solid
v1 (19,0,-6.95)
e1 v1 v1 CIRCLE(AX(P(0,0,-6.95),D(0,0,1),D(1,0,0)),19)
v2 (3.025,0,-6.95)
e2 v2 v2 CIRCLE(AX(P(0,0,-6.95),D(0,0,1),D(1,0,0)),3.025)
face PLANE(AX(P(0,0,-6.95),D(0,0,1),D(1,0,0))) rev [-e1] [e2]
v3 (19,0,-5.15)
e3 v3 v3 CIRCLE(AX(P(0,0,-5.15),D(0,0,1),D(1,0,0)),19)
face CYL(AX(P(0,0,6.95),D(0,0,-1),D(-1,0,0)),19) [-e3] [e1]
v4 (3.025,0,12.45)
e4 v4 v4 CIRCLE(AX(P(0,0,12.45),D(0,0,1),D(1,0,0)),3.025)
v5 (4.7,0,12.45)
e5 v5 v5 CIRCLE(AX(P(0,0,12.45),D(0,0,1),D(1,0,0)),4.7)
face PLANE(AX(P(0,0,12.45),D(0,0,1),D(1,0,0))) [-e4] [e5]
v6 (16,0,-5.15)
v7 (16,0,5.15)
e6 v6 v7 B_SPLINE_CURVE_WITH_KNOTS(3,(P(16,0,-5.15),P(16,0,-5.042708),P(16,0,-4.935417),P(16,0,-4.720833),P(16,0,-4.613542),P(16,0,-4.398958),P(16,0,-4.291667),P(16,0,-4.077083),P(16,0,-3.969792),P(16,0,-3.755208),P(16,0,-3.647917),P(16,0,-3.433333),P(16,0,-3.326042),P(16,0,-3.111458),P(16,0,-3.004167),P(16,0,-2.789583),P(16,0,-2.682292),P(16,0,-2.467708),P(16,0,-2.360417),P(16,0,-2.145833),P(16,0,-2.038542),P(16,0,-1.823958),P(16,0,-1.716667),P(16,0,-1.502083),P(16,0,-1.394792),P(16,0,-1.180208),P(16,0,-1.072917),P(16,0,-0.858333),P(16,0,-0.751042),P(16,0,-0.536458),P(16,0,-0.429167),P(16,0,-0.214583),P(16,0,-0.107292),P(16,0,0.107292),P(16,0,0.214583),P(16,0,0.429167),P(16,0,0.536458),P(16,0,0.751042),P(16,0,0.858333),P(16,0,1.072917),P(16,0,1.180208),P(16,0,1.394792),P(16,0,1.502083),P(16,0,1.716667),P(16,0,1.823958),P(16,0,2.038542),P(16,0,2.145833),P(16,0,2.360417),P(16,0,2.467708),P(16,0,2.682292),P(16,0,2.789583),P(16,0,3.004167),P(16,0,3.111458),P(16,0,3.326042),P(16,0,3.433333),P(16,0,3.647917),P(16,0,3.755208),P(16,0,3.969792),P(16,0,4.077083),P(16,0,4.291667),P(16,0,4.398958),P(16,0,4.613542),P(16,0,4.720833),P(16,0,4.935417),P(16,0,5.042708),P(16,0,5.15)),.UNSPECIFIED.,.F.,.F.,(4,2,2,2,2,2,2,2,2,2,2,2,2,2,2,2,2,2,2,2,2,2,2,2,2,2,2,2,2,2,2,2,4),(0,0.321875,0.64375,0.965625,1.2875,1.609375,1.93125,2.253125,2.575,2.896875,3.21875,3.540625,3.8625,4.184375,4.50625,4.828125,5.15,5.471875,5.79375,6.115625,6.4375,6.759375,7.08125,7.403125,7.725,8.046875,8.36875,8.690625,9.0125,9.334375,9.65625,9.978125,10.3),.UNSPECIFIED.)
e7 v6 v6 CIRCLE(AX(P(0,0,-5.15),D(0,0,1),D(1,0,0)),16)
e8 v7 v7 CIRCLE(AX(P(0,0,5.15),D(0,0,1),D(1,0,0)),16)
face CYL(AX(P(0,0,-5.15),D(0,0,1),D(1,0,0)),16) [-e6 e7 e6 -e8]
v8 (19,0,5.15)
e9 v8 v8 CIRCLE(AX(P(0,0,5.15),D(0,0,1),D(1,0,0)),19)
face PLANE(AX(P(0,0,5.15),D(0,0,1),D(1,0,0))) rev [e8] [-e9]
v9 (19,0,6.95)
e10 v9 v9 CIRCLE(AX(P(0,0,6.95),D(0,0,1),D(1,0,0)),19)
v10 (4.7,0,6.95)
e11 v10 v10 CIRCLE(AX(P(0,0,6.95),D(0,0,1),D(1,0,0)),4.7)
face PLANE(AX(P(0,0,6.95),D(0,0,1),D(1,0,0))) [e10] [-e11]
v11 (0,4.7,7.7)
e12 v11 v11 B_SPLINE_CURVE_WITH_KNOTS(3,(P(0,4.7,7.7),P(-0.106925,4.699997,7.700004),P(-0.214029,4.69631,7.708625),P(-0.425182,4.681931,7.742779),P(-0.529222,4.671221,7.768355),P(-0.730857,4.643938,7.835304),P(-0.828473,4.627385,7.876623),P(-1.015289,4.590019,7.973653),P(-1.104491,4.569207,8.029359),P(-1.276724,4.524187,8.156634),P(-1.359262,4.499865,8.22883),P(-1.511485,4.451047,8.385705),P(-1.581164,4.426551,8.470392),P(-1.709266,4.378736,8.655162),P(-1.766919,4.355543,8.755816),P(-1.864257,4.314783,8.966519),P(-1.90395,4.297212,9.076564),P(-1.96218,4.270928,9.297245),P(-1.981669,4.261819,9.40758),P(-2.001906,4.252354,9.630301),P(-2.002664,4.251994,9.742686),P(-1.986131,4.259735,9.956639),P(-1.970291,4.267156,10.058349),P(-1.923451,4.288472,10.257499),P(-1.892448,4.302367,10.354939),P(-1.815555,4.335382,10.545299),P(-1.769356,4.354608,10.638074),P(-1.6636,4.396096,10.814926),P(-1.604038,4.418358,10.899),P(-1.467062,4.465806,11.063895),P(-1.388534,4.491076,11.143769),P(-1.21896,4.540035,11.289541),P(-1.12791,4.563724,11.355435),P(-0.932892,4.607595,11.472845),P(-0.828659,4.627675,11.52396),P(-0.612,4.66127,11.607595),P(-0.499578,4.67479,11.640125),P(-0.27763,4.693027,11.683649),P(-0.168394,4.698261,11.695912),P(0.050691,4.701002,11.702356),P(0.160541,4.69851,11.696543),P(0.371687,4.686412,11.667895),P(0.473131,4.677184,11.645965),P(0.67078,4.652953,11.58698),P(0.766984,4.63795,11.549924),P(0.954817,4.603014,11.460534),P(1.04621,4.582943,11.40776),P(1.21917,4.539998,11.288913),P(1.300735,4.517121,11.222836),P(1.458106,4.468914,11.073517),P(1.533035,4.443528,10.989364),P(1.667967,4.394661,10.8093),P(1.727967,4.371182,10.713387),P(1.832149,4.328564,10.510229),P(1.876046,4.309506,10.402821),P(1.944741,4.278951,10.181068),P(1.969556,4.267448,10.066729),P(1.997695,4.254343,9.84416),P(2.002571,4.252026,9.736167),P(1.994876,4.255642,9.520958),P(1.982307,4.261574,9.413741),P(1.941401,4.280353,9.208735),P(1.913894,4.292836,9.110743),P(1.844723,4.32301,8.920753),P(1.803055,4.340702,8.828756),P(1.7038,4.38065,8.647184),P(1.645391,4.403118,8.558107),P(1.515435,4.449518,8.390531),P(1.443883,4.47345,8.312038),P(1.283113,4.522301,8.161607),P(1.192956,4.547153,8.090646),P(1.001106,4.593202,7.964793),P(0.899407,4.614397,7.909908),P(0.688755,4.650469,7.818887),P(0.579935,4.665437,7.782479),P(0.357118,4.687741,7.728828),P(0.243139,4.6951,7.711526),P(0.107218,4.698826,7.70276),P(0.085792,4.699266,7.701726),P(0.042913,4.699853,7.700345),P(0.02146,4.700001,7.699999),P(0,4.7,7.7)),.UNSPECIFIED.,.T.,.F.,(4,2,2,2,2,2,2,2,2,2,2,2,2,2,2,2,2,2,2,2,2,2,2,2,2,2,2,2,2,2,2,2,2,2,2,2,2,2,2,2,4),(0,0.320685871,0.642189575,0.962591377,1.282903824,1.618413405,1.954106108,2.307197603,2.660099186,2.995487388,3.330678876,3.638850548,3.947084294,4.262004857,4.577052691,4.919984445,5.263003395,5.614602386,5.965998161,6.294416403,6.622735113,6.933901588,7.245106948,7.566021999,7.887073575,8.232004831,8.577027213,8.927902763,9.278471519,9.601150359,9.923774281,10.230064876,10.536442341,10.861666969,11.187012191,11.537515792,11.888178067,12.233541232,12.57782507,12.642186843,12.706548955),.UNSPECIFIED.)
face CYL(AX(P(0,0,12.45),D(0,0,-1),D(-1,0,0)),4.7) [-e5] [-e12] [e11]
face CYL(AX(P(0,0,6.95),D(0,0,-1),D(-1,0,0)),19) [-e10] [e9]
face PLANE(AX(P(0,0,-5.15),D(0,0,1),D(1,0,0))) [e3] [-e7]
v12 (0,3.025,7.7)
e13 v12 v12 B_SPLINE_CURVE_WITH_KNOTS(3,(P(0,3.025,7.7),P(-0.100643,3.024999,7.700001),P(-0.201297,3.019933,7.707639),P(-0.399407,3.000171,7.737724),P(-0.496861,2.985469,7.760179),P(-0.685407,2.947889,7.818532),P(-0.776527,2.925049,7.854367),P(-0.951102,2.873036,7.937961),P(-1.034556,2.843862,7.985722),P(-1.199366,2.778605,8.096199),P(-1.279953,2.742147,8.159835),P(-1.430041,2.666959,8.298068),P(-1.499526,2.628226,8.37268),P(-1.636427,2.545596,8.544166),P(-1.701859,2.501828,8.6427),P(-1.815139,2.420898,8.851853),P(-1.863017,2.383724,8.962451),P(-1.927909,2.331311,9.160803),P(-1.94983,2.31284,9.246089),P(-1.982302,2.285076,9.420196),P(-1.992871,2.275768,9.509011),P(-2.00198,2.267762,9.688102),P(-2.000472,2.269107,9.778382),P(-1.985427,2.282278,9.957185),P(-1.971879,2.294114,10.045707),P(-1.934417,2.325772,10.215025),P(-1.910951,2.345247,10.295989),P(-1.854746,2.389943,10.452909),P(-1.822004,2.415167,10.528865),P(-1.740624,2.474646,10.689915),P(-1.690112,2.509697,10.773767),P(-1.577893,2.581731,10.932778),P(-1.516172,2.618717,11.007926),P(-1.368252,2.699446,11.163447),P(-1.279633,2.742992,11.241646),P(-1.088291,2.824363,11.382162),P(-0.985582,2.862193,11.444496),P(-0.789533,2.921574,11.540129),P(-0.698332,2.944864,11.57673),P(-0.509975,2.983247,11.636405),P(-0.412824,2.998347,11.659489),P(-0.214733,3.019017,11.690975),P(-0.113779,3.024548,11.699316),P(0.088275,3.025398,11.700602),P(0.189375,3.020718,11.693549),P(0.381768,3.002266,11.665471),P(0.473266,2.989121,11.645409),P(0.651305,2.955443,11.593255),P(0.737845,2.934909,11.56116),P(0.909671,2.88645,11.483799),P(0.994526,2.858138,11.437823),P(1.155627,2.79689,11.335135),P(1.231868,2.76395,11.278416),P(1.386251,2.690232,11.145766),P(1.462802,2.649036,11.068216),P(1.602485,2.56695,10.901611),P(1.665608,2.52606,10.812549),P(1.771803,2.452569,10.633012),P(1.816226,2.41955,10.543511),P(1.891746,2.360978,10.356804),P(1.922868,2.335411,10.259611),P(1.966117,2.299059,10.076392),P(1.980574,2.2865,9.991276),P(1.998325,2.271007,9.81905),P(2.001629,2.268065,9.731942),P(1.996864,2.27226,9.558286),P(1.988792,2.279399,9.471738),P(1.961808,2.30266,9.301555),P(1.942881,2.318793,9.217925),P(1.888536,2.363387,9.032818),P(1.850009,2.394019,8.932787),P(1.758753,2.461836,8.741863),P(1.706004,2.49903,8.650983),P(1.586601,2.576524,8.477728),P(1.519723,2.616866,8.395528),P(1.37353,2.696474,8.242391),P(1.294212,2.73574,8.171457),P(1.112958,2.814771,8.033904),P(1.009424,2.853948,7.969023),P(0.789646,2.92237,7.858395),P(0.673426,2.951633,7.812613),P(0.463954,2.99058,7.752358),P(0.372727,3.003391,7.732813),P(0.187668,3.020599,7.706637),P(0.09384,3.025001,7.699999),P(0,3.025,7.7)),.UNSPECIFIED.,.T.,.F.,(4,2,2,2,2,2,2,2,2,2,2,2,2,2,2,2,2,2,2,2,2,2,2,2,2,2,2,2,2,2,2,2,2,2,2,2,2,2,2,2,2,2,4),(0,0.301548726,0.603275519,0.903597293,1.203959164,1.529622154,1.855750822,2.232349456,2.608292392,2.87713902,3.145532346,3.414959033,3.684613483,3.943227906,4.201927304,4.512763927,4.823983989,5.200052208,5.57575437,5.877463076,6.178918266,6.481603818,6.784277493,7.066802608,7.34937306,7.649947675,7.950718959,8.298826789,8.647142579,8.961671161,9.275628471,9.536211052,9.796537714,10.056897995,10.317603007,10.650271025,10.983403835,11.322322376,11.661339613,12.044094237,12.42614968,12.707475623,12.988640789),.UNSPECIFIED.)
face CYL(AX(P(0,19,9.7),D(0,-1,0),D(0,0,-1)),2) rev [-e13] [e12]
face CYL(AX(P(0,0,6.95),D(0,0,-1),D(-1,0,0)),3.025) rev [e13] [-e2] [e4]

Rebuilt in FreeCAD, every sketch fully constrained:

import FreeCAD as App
import Part
import Sketcher

V = App.Vector
Q = App.Units.Quantity

doc = App.newDocument("Part")
body = doc.addObject("PartDesign::Body", "Body")

# Sketch on XY plane
sketch1 = body.newObject("Sketcher::SketchObject", "Sketch")
sketch1.AttachmentSupport = (doc.getObject("XY_Plane"), [""])
sketch1.MapMode = "FlatFace"
sketch1.addGeometry([
    Part.Circle(V(0, 0, 0), V(0, 0, 1), 19),
    Part.Circle(V(0, 0, 0), V(0, 0, 1), 3),
], False)
sketch1.addConstraint([
    Sketcher.Constraint("Coincident", 0, 3, -1, 1),
    Sketcher.Constraint("Coincident", 1, 3, -1, 1),
    Sketcher.Constraint("Diameter", 0, Q("38 mm")),
    Sketcher.Constraint("Diameter", 1, Q("6.05 mm")),
])
pad1 = body.newObject("PartDesign::Pad", "Pad")
pad1.Profile = sketch1
pad1.Length = 13.9
pad1.Midplane = True

# Sketch on XY plane
sketch2 = body.newObject("Sketcher::SketchObject", "Sketch001")
sketch2.AttachmentSupport = (doc.getObject("XY_Plane"), [""])
sketch2.MapMode = "FlatFace"
sketch2.addGeometry([
    Part.Circle(V(0, 0, 0), V(0, 0, 1), 50),
    Part.Circle(V(0, 0, 0), V(0, 0, 1), 16),
], False)
sketch2.addConstraint([
    Sketcher.Constraint("Coincident", 0, 3, -1, 1),
    Sketcher.Constraint("Coincident", 1, 3, -1, 1),
    Sketcher.Constraint("Diameter", 0, Q("100 mm")),
    Sketcher.Constraint("Diameter", 1, Q("32 mm")),
])
pocket1 = body.newObject("PartDesign::Pocket", "Pocket")
pocket1.Profile = sketch2
pocket1.Length = 10.3
pocket1.Midplane = True

# Sketch on XY plane
sketch3 = body.newObject("Sketcher::SketchObject", "Sketch002")
sketch3.AttachmentSupport = (doc.getObject("XY_Plane"), [""])
sketch3.MapMode = "FlatFace"
sketch3.AttachmentOffset = App.Placement(V(0, 0, 6.95), App.Rotation())
sketch3.addGeometry([
    Part.Circle(V(0, 0, 0), V(0, 0, 1), 4.7),
    Part.Circle(V(0, 0, 0), V(0, 0, 1), 3),
], False)
sketch3.addConstraint([
    Sketcher.Constraint("Coincident", 0, 3, -1, 1),
    Sketcher.Constraint("Coincident", 1, 3, -1, 1),
    Sketcher.Constraint("Diameter", 0, Q("9.4 mm")),
    Sketcher.Constraint("Diameter", 1, Q("6.05 mm")),
])
pad2 = body.newObject("PartDesign::Pad", "Pad001")
pad2.Profile = sketch3
pad2.Length = 5.5

# Sketch on XZ plane
sketch4 = body.newObject("Sketcher::SketchObject", "Sketch003")
sketch4.AttachmentSupport = (doc.getObject("XZ_Plane"), [""])
sketch4.MapMode = "FlatFace"
sketch4.addGeometry(Part.Circle(V(0, 9.7, 0), V(0, 0, 1), 2), False)
sketch4.addConstraint([
    Sketcher.Constraint("PointOnObject", 0, 3, -2),
    Sketcher.Constraint("Diameter", 0, Q("4 mm")),
    Sketcher.Constraint("DistanceY", -1, 1, 0, 3, Q("9.7 mm")),
])
pocket2 = body.newObject("PartDesign::Pocket", "Pocket001")
pocket2.Profile = sketch4
pocket2.Type = "ThroughAll"

doc.recompute()
